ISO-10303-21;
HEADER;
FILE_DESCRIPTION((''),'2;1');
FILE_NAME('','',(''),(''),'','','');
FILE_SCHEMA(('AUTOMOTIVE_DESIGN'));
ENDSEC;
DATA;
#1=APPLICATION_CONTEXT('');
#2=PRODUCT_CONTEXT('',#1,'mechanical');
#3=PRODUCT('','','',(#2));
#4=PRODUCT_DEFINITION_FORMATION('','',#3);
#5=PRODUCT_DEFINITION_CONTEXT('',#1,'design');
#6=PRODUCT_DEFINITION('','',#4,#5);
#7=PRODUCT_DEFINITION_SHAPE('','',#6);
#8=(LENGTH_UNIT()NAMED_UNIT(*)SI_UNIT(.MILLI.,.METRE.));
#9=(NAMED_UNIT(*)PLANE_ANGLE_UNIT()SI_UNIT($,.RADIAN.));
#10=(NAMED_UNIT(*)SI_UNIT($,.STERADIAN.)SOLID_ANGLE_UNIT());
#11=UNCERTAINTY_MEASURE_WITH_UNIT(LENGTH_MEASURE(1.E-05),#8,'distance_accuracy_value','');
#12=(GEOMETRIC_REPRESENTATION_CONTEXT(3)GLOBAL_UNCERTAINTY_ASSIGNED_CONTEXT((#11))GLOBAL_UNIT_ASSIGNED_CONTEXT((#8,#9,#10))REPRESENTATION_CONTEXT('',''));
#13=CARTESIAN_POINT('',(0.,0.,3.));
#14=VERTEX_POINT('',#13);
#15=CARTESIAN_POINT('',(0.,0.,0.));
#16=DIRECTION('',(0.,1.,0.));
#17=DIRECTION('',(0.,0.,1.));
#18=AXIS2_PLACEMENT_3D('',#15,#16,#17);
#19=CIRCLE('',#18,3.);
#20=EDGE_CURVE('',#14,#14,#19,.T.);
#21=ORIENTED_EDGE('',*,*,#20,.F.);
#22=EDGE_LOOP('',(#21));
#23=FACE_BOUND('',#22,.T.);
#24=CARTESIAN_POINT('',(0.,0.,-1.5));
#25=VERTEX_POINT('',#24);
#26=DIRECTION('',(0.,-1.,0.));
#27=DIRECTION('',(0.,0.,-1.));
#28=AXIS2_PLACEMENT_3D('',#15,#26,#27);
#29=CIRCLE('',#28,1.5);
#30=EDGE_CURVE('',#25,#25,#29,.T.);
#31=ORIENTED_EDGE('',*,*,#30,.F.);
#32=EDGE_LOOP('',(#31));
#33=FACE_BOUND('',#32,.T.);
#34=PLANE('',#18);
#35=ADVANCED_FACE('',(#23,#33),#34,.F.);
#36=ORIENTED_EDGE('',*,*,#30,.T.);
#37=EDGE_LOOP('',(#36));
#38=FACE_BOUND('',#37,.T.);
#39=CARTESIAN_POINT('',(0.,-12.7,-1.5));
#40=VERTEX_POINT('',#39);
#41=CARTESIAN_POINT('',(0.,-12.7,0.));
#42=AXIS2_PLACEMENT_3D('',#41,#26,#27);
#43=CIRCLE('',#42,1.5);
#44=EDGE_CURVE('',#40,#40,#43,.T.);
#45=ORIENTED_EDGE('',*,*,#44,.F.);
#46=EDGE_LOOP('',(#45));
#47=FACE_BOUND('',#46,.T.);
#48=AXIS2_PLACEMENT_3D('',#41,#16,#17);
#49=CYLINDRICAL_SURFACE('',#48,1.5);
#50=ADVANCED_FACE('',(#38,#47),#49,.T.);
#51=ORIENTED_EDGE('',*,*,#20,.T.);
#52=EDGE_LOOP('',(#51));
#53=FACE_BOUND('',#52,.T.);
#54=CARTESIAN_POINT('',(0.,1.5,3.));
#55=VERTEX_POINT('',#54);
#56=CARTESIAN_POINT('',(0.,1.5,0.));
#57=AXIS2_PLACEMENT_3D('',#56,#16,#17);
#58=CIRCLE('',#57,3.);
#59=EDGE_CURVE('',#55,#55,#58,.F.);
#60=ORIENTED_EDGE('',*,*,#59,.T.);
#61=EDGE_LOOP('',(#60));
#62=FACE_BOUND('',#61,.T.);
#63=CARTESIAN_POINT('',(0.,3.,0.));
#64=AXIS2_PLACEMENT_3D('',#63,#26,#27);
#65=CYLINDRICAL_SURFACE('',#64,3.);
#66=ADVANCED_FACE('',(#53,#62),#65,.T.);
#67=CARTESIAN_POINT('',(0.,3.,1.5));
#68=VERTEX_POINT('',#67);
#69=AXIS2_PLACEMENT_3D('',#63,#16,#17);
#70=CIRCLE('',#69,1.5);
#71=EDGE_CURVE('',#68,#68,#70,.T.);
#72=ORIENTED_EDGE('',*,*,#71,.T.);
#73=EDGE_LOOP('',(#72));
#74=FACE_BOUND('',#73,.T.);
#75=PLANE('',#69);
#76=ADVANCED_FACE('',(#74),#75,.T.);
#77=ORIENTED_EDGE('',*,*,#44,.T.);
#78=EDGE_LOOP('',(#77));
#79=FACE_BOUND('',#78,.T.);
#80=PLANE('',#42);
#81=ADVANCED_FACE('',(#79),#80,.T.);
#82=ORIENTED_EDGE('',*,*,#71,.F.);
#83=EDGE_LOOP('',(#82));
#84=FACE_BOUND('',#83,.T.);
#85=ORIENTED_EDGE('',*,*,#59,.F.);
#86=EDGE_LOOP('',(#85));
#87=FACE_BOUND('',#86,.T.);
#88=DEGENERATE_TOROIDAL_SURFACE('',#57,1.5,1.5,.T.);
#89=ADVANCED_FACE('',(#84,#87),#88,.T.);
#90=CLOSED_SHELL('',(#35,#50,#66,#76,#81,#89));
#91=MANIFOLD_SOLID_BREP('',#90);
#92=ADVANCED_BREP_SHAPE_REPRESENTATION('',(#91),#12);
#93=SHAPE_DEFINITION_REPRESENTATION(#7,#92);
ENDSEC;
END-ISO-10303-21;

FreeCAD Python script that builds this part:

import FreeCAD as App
import Part
import Sketcher


def edges_at(feature, points):
    """Names of the edges that pass closest to the given points."""
    edges = feature.Shape.Edges
    near = lambda p: min(range(len(edges)), key=lambda i: edges[i].distToShape(Part.Vertex(*p))[0])
    return sorted({f"Edge{near(p) + 1}" for p in points})

doc = App.newDocument("Part")
body = doc.addObject("PartDesign::Body", "Body")

# Sketch on XZ plane
sketch1 = body.newObject("Sketcher::SketchObject", "Sketch")
sketch1.AttachmentSupport = (doc.getObject("XZ_Plane"), [""])
sketch1.MapMode = "FlatFace"
sketch1.addGeometry(Part.Circle(App.Vector(0, 0, 0), App.Vector(0, 0, 1), 3), False)
sketch1.addConstraint(Sketcher.Constraint("Coincident", 0, 3, -1, 1))
sketch1.addConstraint(Sketcher.Constraint("Diameter", 0, 6.0))
pad1 = body.newObject("PartDesign::Pad", "Pad")
pad1.Profile = sketch1
pad1.Length = 3
pad1.Reversed = True
doc.recompute()

fillet = body.newObject("PartDesign::Fillet", "Fillet")
fillet.Base = (pad1, edges_at(pad1, [(-3, 3, 0)]))
fillet.Radius = 1.5

# Sketch on XZ plane
sketch2 = body.newObject("Sketcher::SketchObject", "Sketch001")
sketch2.AttachmentSupport = (doc.getObject("XZ_Plane"), [""])
sketch2.MapMode = "FlatFace"
sketch2.addGeometry(Part.Circle(App.Vector(0, 0, 0), App.Vector(0, 0, 1), 1.5), False)
sketch2.addConstraint(Sketcher.Constraint("Coincident", 0, 3, -1, 1))
sketch2.addConstraint(Sketcher.Constraint("Diameter", 0, 3.0))
pad2 = body.newObject("PartDesign::Pad", "Pad001")
pad2.Profile = sketch2
pad2.Length = 12.7

doc.recompute()
